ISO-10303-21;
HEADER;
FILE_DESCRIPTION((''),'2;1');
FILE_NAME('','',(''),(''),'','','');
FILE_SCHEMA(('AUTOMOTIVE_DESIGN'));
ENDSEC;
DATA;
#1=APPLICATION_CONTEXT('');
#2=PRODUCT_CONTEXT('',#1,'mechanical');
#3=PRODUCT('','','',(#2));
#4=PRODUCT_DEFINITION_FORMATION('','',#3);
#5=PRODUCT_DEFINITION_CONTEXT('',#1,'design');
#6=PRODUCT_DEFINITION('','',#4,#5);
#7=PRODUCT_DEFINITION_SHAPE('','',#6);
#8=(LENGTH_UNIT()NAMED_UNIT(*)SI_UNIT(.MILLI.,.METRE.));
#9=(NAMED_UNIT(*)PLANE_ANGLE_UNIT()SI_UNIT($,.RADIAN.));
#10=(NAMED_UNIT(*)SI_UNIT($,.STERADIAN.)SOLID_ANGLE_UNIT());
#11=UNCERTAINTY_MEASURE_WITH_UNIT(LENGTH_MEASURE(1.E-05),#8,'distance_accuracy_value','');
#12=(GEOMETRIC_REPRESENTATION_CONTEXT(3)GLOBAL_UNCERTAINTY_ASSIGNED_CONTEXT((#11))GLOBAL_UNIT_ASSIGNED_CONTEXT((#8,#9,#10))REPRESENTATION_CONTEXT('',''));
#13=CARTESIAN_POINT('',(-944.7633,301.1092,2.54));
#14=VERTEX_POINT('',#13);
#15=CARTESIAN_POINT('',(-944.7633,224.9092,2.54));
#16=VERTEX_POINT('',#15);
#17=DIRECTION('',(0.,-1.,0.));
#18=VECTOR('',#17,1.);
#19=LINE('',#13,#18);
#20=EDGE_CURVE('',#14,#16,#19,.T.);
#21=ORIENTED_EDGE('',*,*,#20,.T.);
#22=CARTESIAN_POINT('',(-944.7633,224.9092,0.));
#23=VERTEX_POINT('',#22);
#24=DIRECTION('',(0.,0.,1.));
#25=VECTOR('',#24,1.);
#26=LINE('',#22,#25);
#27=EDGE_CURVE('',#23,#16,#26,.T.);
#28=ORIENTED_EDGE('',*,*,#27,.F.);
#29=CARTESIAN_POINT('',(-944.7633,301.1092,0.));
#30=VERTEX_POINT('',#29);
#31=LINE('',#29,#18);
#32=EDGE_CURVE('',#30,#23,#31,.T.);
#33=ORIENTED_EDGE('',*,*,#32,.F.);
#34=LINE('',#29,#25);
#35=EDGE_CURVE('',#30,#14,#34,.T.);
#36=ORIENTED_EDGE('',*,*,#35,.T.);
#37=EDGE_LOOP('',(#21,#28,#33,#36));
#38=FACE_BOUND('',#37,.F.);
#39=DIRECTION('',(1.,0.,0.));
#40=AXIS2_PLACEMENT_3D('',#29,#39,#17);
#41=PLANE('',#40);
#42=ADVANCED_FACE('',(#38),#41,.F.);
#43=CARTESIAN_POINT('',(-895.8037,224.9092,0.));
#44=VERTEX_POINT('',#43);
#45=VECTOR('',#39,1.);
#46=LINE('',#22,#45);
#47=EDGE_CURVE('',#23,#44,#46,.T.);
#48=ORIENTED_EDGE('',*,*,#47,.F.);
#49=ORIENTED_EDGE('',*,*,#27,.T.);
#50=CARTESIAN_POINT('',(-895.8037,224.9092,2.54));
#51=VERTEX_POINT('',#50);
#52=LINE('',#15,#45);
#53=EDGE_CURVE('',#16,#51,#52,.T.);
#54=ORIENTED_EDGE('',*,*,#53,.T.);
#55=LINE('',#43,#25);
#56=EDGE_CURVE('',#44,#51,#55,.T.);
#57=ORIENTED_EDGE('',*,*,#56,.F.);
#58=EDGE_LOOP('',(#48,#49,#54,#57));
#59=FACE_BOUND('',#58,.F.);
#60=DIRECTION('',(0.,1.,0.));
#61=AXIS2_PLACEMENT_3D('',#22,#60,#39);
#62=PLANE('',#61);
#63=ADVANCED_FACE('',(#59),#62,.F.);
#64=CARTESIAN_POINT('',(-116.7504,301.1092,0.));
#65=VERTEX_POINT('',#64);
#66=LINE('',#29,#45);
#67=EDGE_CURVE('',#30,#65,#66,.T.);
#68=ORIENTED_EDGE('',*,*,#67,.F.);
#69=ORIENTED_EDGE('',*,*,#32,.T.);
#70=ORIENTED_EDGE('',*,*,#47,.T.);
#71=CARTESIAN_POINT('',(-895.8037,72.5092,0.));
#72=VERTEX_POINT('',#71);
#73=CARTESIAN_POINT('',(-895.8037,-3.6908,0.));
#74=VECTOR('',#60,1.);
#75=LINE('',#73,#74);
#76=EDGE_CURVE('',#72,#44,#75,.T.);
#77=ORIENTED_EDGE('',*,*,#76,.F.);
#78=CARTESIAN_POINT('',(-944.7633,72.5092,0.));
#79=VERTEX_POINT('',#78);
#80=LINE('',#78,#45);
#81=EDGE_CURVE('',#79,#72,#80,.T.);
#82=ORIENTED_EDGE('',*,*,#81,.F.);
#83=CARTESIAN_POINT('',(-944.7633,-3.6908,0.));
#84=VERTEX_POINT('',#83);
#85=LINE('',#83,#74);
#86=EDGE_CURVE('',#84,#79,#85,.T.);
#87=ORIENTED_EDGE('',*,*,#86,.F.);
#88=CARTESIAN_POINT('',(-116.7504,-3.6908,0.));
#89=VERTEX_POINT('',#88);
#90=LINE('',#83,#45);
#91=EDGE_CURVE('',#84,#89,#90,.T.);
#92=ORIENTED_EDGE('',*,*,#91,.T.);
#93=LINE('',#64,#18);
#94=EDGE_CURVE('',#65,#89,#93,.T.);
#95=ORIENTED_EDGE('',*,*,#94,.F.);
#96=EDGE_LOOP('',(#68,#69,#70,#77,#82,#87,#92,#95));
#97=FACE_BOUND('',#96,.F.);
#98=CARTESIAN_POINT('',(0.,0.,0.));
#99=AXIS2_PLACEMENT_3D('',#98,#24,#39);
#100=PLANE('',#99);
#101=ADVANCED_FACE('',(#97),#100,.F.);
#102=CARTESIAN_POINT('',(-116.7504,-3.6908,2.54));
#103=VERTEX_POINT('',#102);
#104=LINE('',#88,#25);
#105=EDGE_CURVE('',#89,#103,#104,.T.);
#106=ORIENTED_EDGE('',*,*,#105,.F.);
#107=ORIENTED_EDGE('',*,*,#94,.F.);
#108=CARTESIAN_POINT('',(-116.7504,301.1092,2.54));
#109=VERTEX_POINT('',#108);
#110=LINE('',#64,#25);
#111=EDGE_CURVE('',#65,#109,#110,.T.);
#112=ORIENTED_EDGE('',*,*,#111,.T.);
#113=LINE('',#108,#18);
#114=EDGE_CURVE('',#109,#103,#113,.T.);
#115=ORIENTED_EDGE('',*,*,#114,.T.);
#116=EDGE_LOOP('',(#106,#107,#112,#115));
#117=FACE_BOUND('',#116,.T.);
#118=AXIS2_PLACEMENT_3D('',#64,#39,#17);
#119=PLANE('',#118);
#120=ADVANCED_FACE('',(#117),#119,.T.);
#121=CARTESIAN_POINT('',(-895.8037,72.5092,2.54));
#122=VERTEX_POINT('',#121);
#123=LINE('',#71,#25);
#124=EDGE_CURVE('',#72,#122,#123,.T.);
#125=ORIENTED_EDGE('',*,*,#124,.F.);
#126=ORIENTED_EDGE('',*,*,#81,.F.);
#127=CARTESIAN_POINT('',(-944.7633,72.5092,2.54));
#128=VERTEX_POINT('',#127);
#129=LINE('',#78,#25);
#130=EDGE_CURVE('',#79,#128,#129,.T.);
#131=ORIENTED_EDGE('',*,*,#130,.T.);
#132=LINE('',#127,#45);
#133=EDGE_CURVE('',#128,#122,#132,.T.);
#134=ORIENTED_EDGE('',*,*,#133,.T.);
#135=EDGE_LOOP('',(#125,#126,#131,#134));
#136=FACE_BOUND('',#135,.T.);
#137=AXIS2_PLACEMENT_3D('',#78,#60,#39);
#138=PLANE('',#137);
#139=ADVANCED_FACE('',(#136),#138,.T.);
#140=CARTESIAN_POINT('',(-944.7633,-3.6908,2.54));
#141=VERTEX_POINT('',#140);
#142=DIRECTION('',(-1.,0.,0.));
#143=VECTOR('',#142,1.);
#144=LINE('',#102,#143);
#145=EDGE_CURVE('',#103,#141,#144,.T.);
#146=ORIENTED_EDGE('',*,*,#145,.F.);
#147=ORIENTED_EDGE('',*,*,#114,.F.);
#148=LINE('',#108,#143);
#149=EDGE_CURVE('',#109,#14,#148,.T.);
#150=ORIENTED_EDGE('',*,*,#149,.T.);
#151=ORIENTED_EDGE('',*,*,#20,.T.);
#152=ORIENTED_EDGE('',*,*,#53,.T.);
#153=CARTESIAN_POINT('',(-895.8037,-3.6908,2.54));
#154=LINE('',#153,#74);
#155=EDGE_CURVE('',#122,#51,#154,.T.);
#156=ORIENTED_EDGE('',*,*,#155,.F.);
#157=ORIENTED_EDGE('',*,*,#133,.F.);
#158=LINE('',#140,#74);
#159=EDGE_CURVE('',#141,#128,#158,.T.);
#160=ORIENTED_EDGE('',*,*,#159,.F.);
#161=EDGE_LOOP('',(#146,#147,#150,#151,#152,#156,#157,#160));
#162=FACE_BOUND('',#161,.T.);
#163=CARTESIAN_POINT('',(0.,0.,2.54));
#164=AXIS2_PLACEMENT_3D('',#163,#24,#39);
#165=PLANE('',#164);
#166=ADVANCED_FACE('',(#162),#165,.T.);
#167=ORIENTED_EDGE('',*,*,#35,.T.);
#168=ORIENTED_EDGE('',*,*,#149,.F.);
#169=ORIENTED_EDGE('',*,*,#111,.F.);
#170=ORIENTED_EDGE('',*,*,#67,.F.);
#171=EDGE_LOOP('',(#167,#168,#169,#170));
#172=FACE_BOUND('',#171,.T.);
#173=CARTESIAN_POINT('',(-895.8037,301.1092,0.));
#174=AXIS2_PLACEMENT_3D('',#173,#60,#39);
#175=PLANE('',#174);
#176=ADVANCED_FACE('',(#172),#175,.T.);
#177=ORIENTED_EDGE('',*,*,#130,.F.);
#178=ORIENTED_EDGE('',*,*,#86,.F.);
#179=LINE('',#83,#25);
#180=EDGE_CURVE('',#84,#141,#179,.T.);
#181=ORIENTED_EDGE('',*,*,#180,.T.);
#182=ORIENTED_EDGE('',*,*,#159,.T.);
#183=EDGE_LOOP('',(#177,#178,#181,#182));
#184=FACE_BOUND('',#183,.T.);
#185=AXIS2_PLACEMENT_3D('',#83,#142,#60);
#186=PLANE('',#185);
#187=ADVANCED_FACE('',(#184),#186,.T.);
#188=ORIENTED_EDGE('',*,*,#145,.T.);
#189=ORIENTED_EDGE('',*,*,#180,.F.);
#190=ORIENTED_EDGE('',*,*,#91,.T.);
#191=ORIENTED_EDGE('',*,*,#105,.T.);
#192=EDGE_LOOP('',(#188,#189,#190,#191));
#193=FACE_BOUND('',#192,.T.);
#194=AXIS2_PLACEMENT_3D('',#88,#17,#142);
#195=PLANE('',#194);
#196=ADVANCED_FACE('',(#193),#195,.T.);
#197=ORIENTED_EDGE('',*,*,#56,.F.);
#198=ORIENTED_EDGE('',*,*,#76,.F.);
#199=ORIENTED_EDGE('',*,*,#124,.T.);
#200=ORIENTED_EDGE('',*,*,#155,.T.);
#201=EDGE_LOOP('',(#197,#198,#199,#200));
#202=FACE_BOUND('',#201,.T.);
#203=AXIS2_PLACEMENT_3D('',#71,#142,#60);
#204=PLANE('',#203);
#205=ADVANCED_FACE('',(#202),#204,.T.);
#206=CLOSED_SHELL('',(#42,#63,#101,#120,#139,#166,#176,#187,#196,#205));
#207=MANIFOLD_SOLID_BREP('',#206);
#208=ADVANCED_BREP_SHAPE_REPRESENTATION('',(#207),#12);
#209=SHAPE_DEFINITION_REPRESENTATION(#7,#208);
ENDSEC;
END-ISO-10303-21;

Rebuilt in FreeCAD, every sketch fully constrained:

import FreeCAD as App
import Part
import Sketcher

V = App.Vector
Q = App.Units.Quantity


def add_polygon(sketch, points):
    """Adds a closed chain of lines whose ends are joined by coincident constraints."""
    first, n = sketch.GeometryCount, len(points)
    for a, b in zip(points, points[1:] + points[:1]):
        sketch.addGeometry(Part.LineSegment(App.Vector(*a, 0), App.Vector(*b, 0)), False)
    for i in range(n):
        sketch.addConstraint(Sketcher.Constraint("Coincident", first + i, 2, first + (i + 1) % n, 1))

doc = App.newDocument("Part")
params = doc.addObject("Spreadsheet::Sheet", "Params")
for row, (alias, value) in enumerate([
    ("sketch1_height", "12 in"),
    ("sketch1_height2", "3 in"),
    ("pad1_length", "0.1 in"),
], start=1):
    params.set(f"A{row}", alias)
    params.set(f"B{row}", "=" + value)
    params.setAlias(f"B{row}", alias)

body = doc.addObject("PartDesign::Body", "Body")

# Sketch on XY plane
sketch1 = body.newObject("Sketcher::SketchObject", "Sketch")
sketch1.AttachmentSupport = (doc.getObject("XY_Plane"), [""])
sketch1.MapMode = "FlatFace"
add_polygon(sketch1, [(-117, -4), (-117, 301), (-945, 301), (-945, 225), (-896, 225), (-896, 73), (-945, 73), (-945, -4)])  # lines 0-7
sketch1.addConstraint([
    Sketcher.Constraint("Vertical", 0),
    Sketcher.Constraint("Horizontal", 1),
    Sketcher.Constraint("Vertical", 2),
    Sketcher.Constraint("Horizontal", 3),
    Sketcher.Constraint("Vertical", 4),
    Sketcher.Constraint("Horizontal", 5),
    Sketcher.Constraint("Vertical", 6),
    Sketcher.Constraint("Horizontal", 7),
    Sketcher.Constraint("Vertical", 2, 2, 5, 2),
    Sketcher.Constraint("Equal", 2, 6),
    Sketcher.Constraint("DistanceY", 0, 1, 0, 2, Q("12 in")),
    Sketcher.Constraint("DistanceY", 2, 2, 2, 1, Q("3 in")),
    Sketcher.Constraint("DistanceX", 1, 2, 1, 1, 828.013),
    Sketcher.Constraint("DistanceX", 3, 1, 3, 2, 48.9596),
    Sketcher.Constraint("DistanceY", -1, 1, 0, 2, Q("11.8547 in")),
    Sketcher.Constraint("DistanceX", 1, 2, -1, 1, Q("37.1954 in")),
])
sketch1.setExpression("Constraints[18]", "Params.sketch1_height")
sketch1.setExpression("Constraints[19]", "Params.sketch1_height2")
pad1 = body.newObject("PartDesign::Pad", "Pad")
pad1.Profile = sketch1
pad1.setExpression("Length", "Params.pad1_length")

doc.recompute()
